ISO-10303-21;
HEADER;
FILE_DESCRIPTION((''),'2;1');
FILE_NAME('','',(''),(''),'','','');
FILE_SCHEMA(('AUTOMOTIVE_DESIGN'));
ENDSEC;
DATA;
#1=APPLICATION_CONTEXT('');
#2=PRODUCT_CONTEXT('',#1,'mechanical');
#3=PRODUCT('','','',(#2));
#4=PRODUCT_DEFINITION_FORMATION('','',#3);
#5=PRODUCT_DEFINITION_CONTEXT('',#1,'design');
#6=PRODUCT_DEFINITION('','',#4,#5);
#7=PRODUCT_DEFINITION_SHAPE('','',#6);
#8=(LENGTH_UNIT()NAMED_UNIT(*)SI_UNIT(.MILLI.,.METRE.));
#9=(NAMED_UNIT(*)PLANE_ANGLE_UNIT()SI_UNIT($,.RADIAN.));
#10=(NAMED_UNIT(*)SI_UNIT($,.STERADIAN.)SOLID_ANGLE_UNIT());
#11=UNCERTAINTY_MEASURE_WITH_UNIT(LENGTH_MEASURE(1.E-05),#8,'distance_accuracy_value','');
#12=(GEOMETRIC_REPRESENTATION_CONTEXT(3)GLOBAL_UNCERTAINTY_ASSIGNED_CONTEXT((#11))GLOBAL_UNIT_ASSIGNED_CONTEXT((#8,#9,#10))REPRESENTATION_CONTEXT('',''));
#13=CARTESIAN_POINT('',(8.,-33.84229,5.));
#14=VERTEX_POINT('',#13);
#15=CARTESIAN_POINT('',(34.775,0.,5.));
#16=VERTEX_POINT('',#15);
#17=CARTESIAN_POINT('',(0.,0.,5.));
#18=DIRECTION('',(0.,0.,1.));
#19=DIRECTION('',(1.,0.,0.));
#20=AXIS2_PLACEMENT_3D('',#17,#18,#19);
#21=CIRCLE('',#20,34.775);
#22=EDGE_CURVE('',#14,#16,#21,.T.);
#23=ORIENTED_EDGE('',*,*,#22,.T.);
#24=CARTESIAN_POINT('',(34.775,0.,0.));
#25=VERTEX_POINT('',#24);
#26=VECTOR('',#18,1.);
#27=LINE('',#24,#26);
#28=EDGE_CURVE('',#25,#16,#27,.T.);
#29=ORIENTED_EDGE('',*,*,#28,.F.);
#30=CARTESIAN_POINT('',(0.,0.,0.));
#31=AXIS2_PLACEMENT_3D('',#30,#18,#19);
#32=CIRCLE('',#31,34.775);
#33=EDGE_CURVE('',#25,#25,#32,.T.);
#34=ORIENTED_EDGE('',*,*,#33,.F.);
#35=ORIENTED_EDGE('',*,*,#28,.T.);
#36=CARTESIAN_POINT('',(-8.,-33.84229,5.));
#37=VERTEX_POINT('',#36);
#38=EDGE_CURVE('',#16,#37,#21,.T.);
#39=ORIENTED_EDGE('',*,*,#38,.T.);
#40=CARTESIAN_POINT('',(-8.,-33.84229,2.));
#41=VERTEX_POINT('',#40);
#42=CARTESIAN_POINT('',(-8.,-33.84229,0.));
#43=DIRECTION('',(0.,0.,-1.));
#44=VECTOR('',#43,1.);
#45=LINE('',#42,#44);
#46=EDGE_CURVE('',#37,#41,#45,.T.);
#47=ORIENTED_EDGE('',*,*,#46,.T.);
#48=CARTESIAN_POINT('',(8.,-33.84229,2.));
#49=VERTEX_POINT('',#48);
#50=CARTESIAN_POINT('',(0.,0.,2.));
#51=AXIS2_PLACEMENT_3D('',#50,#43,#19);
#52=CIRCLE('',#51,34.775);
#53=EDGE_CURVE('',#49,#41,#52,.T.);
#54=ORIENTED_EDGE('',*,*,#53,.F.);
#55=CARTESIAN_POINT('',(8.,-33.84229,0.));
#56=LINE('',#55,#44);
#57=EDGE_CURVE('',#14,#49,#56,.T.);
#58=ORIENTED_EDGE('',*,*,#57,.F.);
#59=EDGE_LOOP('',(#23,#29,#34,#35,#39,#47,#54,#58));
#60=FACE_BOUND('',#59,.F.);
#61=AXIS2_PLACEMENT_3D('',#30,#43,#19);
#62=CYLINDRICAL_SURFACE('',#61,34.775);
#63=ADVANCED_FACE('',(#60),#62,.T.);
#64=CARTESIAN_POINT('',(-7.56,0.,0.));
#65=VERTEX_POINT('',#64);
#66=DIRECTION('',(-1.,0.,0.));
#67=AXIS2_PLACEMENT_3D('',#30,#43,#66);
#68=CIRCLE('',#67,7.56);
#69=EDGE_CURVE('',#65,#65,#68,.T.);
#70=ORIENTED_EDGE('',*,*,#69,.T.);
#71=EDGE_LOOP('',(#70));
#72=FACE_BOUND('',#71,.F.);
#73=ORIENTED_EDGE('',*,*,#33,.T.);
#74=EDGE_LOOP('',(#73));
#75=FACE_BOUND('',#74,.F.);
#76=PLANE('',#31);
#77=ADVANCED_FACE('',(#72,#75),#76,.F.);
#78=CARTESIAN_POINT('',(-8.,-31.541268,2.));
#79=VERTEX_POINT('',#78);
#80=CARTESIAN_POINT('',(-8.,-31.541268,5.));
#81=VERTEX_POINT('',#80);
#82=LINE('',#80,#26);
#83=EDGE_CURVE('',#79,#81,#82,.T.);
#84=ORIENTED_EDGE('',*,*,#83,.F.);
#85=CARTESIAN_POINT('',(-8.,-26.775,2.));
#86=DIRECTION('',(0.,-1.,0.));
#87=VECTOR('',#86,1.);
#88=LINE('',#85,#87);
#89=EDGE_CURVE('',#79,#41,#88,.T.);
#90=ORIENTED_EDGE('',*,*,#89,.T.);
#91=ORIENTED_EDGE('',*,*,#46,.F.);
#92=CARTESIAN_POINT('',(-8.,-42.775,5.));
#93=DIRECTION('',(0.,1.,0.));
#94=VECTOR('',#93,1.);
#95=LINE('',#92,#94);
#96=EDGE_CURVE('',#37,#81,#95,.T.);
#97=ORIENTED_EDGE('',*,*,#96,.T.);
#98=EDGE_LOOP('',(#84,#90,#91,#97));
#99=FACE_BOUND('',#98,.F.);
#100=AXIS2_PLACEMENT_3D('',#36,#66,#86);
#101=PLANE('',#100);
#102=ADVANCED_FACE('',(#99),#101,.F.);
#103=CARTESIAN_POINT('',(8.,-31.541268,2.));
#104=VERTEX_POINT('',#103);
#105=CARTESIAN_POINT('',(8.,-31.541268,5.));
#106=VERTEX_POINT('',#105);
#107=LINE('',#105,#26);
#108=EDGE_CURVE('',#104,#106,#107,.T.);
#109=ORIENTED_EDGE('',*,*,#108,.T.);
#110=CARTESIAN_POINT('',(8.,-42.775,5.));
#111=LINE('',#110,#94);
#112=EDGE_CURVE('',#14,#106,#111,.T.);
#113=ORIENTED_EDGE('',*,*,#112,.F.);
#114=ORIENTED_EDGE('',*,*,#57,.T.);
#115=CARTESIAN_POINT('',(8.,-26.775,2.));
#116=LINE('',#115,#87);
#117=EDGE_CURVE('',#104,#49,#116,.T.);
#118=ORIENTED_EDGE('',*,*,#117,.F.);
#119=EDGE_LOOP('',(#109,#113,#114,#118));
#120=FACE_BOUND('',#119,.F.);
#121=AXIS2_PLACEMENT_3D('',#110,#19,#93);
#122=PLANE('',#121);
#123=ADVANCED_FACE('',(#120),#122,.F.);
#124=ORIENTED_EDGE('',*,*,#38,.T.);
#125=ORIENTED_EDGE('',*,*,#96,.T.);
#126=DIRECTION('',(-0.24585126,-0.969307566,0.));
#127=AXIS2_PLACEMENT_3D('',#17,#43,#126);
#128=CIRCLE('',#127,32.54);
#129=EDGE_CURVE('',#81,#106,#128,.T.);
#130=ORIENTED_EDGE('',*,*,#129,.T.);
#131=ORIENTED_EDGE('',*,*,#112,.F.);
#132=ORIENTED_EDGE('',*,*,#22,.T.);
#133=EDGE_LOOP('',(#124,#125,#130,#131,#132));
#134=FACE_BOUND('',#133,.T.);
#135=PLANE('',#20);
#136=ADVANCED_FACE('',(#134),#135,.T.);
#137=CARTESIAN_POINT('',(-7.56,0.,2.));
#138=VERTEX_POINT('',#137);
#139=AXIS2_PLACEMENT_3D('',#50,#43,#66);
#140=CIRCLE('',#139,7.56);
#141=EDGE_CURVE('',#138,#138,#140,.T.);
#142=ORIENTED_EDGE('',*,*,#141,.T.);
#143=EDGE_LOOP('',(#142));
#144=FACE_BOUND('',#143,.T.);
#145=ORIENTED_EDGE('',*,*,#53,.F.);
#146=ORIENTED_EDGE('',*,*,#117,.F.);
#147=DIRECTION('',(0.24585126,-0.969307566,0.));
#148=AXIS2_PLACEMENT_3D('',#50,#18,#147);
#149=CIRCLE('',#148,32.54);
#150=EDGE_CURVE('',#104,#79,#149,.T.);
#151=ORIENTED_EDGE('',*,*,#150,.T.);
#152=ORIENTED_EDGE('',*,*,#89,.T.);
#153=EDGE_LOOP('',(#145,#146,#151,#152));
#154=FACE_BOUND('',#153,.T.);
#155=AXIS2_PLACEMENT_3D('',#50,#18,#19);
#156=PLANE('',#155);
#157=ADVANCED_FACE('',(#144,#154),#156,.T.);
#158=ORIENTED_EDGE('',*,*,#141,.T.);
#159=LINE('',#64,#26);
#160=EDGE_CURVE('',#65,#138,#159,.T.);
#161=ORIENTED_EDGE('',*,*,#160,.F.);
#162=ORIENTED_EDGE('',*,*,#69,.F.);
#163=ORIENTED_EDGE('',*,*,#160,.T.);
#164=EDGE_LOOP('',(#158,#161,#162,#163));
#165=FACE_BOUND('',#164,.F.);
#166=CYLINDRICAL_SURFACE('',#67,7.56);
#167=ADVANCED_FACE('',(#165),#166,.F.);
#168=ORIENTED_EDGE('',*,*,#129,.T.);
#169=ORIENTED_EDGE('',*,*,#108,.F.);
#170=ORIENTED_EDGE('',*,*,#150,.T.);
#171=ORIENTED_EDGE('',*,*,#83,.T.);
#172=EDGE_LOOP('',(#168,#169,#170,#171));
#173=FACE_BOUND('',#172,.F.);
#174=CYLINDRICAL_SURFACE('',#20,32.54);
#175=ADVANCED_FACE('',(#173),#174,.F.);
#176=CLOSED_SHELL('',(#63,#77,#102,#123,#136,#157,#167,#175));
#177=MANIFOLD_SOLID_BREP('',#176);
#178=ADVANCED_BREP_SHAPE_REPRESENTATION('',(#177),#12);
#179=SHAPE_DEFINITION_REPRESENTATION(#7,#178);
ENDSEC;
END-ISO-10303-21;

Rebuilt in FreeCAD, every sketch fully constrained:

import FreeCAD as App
import Part
import Sketcher

V = App.Vector


def add_polygon(sketch, points):
    """Adds a closed chain of lines whose ends are joined by coincident constraints."""
    first, n = sketch.GeometryCount, len(points)
    for a, b in zip(points, points[1:] + points[:1]):
        sketch.addGeometry(Part.LineSegment(App.Vector(*a, 0), App.Vector(*b, 0)), False)
    for i in range(n):
        sketch.addConstraint(Sketcher.Constraint("Coincident", first + i, 2, first + (i + 1) % n, 1))

doc = App.newDocument("Part")
body = doc.addObject("PartDesign::Body", "Body")

# Sketch on XY plane
sketch1 = doc.addObject("Sketcher::SketchObject", "Sketch")
body.addObject(sketch1)
sketch1.AttachmentSupport = (doc.XY_Plane, [""])
sketch1.MapMode = "FlatFace"
sketch1.addGeometry(Part.Circle(V(0, 0, 0), V(0, 0, 1), 35), False)
sketch1.addConstraint([
    Sketcher.Constraint("Coincident", 0, 3, -1, 1),
    Sketcher.Constraint("Diameter", 0, 69.55),
])
pad1 = doc.addObject("PartDesign::Pad", "Pad")
body.addObject(pad1)
pad1.Profile = sketch1
pad1.Length = 5

# Sketch on XY plane
sketch2 = doc.addObject("Sketcher::SketchObject", "Sketch001")
body.addObject(sketch2)
sketch2.AttachmentSupport = (doc.XY_Plane, [""])
sketch2.MapMode = "FlatFace"
sketch2.AttachmentOffset = App.Placement(V(0, 0, 5), App.Rotation())
sketch2.addGeometry(Part.Circle(V(0, 0, 0), V(0, 0, 1), 33), False)
sketch2.addConstraint([
    Sketcher.Constraint("Coincident", 0, 3, -1, 1),
    Sketcher.Constraint("Diameter", 0, 65.08),
])
pocket1 = doc.addObject("PartDesign::Pocket", "Pocket")
body.addObject(pocket1)
pocket1.Profile = sketch2
pocket1.Length = 3

# Sketch on XY plane
sketch3 = doc.addObject("Sketcher::SketchObject", "Sketch002")
body.addObject(sketch3)
sketch3.AttachmentSupport = (doc.XY_Plane, [""])
sketch3.MapMode = "FlatFace"
sketch3.addGeometry(Part.Circle(V(0, 0, 0), V(0, 0, 1), 8), False)
sketch3.addConstraint([
    Sketcher.Constraint("Coincident", 0, 3, -1, 1),
    Sketcher.Constraint("Diameter", 0, 15.12),
])
pocket2 = doc.addObject("PartDesign::Pocket", "Pocket001")
body.addObject(pocket2)
pocket2.Profile = sketch3
pocket2.Type = "ThroughAll"
pocket2.Reversed = True

# Sketch on XY plane
sketch4 = doc.addObject("Sketcher::SketchObject", "Sketch003")
body.addObject(sketch4)
sketch4.AttachmentSupport = (doc.XY_Plane, [""])
sketch4.MapMode = "FlatFace"
sketch4.AttachmentOffset = App.Placement(V(0, 0, 5), App.Rotation())
add_polygon(sketch4, [(-8, -43), (8, -43), (8, -27), (-8, -27)])  # lines 0-3
sketch4.addConstraint([
    Sketcher.Constraint("Horizontal", 0),
    Sketcher.Constraint("Vertical", 1),
    Sketcher.Constraint("Horizontal", 2),
    Sketcher.Constraint("Vertical", 3),
    Sketcher.Constraint("Equal", 2, 1),
    Sketcher.Constraint("DistanceX", 0, 1, 0, 2, 16.0),
    Sketcher.Constraint("DistanceX", -1, 1, 0, 2, 8.0),
    Sketcher.Constraint("DistanceY", 0, 2, -1, 1, 42.775),
])
pocket3 = doc.addObject("PartDesign::Pocket", "Pocket002")
body.addObject(pocket3)
pocket3.Profile = sketch4
pocket3.Length = 3

doc.recompute()
